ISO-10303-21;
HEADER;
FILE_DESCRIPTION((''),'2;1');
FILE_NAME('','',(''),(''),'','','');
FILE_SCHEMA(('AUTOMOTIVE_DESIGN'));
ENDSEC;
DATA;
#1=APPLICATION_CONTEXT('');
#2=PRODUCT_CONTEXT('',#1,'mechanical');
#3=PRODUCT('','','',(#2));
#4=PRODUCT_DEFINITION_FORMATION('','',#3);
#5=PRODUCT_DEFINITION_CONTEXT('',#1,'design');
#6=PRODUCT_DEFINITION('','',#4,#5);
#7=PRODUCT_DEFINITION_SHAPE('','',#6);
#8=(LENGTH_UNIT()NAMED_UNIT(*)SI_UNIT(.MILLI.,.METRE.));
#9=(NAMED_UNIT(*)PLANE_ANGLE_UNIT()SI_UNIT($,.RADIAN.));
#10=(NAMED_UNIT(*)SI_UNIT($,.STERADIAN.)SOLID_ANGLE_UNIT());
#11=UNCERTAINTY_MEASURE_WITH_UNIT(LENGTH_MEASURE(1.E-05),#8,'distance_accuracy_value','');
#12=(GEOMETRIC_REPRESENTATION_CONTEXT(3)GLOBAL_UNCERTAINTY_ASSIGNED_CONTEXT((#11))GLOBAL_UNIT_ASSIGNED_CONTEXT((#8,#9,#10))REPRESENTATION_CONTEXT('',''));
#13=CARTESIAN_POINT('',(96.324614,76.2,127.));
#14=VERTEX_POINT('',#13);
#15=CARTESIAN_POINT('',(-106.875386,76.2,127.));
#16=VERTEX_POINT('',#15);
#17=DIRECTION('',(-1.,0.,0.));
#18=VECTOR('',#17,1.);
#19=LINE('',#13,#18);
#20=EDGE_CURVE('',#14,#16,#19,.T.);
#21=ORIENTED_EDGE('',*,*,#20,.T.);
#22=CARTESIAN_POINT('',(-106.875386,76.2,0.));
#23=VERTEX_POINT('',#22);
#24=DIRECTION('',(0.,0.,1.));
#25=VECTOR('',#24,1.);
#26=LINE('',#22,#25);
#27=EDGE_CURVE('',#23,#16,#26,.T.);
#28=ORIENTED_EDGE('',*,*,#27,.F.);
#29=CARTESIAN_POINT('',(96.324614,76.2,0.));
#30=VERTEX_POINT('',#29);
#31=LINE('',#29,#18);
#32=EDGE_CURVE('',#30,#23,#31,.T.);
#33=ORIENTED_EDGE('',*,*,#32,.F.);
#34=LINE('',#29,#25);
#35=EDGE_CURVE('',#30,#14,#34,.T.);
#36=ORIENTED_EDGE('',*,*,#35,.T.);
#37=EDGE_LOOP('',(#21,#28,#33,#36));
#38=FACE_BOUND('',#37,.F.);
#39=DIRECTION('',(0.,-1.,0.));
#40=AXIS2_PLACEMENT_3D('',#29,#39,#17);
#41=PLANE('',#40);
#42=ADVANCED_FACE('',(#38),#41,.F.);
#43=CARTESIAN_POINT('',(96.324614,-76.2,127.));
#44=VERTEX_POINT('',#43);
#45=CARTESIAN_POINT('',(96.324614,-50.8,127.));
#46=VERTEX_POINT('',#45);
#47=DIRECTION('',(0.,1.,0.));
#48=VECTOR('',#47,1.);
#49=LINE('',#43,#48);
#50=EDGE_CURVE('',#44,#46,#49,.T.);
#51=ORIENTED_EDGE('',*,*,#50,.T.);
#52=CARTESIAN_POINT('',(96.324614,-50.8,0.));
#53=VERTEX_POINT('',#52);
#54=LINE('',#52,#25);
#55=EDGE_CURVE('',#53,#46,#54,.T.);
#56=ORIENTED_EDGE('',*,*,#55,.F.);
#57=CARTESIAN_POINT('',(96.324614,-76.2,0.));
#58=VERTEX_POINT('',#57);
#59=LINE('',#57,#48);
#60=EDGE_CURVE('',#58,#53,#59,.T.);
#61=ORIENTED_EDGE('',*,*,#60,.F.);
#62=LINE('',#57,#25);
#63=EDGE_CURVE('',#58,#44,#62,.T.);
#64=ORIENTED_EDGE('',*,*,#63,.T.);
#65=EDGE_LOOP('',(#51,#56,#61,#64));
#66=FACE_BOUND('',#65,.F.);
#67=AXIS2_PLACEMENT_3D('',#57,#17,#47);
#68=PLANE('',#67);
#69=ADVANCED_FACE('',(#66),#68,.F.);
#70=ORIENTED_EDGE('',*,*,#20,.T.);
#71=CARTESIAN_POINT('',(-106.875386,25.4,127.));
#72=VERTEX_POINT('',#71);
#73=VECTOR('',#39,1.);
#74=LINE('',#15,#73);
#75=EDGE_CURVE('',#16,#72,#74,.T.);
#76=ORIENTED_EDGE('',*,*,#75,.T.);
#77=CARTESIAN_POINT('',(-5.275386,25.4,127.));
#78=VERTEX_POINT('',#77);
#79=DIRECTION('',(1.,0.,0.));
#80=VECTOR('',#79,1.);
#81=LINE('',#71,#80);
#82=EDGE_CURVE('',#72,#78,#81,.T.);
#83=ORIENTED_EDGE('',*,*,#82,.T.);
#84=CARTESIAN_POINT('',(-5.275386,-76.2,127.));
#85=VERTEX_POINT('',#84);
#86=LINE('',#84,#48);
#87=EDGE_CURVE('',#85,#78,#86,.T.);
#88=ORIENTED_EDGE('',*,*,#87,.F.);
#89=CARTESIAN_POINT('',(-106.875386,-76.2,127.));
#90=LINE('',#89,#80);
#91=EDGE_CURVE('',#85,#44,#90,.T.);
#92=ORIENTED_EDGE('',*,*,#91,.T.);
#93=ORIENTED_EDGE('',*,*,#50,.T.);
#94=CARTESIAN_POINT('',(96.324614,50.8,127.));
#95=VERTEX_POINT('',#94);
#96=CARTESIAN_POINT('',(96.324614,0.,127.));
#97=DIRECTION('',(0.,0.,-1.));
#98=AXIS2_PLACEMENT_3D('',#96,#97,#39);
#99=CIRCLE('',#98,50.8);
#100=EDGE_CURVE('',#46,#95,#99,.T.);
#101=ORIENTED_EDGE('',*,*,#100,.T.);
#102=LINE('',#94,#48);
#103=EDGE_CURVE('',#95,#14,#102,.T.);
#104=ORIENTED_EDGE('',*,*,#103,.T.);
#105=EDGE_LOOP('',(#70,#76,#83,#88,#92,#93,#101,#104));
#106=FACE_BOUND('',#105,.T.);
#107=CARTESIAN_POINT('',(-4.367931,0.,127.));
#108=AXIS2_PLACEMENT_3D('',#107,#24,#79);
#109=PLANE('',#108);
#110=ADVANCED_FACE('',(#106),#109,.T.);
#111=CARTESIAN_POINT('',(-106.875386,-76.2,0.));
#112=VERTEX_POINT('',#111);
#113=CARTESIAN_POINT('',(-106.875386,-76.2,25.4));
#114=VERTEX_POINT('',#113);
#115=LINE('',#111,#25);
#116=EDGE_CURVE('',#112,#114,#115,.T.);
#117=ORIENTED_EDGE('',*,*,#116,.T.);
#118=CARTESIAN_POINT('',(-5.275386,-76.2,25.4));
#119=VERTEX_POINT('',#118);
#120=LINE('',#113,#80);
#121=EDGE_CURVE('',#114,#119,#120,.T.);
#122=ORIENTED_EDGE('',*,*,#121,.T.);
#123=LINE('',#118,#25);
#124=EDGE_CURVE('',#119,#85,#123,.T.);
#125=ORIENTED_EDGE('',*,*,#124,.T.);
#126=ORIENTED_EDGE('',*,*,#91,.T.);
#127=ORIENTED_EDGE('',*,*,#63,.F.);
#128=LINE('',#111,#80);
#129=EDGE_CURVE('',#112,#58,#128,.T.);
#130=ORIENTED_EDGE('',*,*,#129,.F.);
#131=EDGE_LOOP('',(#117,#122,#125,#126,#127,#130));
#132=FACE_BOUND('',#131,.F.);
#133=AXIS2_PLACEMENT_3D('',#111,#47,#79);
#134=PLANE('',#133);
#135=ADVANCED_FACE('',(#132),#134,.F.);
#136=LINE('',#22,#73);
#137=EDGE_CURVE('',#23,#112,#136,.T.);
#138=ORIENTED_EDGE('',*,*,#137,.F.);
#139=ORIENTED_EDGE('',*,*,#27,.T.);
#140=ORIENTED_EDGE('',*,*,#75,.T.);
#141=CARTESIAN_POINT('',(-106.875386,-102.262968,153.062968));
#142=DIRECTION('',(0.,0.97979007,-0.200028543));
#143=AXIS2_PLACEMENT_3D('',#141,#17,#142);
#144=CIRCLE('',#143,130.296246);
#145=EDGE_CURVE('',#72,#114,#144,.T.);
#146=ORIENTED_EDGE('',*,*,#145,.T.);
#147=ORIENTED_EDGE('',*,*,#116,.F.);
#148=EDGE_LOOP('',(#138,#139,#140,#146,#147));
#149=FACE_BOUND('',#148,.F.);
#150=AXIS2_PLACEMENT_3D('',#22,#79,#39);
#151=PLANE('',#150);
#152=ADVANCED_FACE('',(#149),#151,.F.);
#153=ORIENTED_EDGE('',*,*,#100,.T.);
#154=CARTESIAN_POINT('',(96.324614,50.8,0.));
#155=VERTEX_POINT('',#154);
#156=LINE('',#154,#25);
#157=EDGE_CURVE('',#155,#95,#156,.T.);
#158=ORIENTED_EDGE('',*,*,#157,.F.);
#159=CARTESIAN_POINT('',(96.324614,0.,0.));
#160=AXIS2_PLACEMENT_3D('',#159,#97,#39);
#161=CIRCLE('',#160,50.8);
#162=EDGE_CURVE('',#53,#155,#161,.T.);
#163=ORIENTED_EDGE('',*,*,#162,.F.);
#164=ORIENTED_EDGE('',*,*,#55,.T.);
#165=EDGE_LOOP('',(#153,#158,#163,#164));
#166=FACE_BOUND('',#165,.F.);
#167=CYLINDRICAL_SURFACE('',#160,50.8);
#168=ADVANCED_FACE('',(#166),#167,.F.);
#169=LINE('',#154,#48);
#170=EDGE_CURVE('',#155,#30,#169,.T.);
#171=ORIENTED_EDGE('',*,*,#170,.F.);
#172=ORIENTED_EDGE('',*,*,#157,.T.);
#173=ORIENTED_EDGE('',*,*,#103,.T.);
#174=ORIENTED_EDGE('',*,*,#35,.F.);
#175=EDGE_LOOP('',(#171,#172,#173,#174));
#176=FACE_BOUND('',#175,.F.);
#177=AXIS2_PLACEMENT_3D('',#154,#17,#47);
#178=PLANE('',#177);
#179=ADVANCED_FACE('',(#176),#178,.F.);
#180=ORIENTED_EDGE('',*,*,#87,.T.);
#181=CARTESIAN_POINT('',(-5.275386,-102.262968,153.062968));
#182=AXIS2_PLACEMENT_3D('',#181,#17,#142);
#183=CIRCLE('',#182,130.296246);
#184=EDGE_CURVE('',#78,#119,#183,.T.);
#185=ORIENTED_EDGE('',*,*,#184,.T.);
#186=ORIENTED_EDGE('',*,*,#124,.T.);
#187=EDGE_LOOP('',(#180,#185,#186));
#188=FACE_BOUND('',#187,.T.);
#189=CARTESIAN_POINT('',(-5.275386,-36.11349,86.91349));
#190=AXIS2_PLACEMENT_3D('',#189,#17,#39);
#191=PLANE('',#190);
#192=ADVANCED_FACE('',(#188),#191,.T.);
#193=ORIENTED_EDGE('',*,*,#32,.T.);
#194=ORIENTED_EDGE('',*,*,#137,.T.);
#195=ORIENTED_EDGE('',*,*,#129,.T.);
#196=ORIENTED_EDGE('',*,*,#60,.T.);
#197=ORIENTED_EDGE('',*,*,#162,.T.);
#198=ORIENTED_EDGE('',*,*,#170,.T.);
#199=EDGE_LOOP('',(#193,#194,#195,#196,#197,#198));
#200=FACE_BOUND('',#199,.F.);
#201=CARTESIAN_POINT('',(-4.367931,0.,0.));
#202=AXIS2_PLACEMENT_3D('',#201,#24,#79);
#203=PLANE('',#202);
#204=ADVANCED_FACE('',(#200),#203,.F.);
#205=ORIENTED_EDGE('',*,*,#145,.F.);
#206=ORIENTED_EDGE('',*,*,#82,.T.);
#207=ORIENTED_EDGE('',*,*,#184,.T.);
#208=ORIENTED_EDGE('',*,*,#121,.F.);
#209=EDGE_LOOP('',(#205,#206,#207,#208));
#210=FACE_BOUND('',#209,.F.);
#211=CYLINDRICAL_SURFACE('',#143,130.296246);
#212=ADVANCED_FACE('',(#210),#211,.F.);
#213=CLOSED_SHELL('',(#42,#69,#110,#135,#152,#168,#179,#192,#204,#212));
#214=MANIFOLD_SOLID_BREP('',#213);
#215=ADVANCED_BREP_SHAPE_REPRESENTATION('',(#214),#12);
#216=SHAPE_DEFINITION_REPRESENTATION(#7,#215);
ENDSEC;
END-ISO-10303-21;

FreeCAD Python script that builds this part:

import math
import FreeCAD as App
import Part
import Sketcher

V = App.Vector
Q = App.Units.Quantity

doc = App.newDocument("Part")
params = doc.addObject("Spreadsheet::Sheet", "Params")
for row, (alias, value) in enumerate([
    ("sketch1_radius", "2 in"),
    ("sketch1_width", "8 in"),
    ("sketch1_height", "6 in"),
    ("pad1_length", "5 in"),
    ("sketch2_width", "4 in"),
    ("pocket1_length", "4 in"),
], start=1):
    params.set(f"A{row}", alias)
    params.set(f"B{row}", "=" + value)
    params.setAlias(f"B{row}", alias)

body = doc.addObject("PartDesign::Body", "Body")

# Sketch on XY plane
sketch1 = body.newObject("Sketcher::SketchObject", "Sketch")
sketch1.AttachmentSupport = (doc.getObject("XY_Plane"), [""])
sketch1.MapMode = "FlatFace"
sketch1.addGeometry([
    Part.LineSegment(V(96, 76, 0), V(-107, 76, 0)),  # 0
    Part.LineSegment(V(-107, 76, 0), V(-107, -76, 0)),  # 1
    Part.LineSegment(V(-107, -76, 0), V(96, -76, 0)),  # 2
    Part.LineSegment(V(96, -76, 0), V(96, -51, 0)),  # 3
    Part.ArcOfCircle(Part.Circle(V(96, 0, 0), V(0, 0, 1), 51), math.radians(90), math.radians(270)),  # 4
    Part.LineSegment(V(96, 51, 0), V(96, 76, 0)),  # 5
], False)
sketch1.addConstraint([
    Sketcher.Constraint("Coincident", 0, 2, 1, 1),
    Sketcher.Constraint("Coincident", 1, 2, 2, 1),
    Sketcher.Constraint("Coincident", 2, 2, 3, 1),
    Sketcher.Constraint("Coincident", 3, 2, 4, 2),
    Sketcher.Constraint("Coincident", 4, 1, 5, 1),
    Sketcher.Constraint("Coincident", 5, 2, 0, 1),
    Sketcher.Constraint("Horizontal", 0),
    Sketcher.Constraint("Vertical", 1),
    Sketcher.Constraint("Horizontal", 2),
    Sketcher.Constraint("Vertical", 3),
    Sketcher.Constraint("Vertical", 5),
    Sketcher.Constraint("Symmetric", 3, 2, 4, 1, -1),
    Sketcher.Constraint("Vertical", 4, 3, 2, 2),
    Sketcher.Constraint("Equal", 3, 5),
    Sketcher.Constraint("Radius", 4, Q("2 in")),
    Sketcher.Constraint("DistanceX", 0, 2, 0, 1, Q("8 in")),
    Sketcher.Constraint("DistanceY", 1, 2, 1, 1, Q("6 in")),
    Sketcher.Constraint("DistanceX", -1, 1, 4, 3, Q("96.324614 mm")),
])
sketch1.setExpression("Constraints[14]", "Params.sketch1_radius")
sketch1.setExpression("Constraints[15]", "Params.sketch1_width")
sketch1.setExpression("Constraints[16]", "Params.sketch1_height")
pad1 = body.newObject("PartDesign::Pad", "Pad")
pad1.Profile = sketch1
pad1.setExpression("Length", "Params.pad1_length")

# Sketch on YZ plane
sketch2 = body.newObject("Sketcher::SketchObject", "Sketch001")
sketch2.AttachmentSupport = (doc.getObject("YZ_Plane"), [""])
sketch2.MapMode = "FlatFace"
sketch2.AttachmentOffset = App.Placement(V(0, 0, -106.875386), App.Rotation())
sketch2.addGeometry([
    Part.LineSegment(V(-76, 127, 0), V(25, 127, 0)),
    Part.ArcOfCircle(Part.Circle(V(-102, 153, 0), V(0, 0, 1), 130), math.radians(-78), math.radians(-12)),
    Part.LineSegment(V(-76, 25, 0), V(-76, 127, 0)),
], False)
sketch2.addConstraint([
    Sketcher.Constraint("Coincident", 0, 2, 1, 2),
    Sketcher.Constraint("Coincident", 1, 1, 2, 1),
    Sketcher.Constraint("Coincident", 2, 2, 0, 1),
    Sketcher.Constraint("Horizontal", 0),
    Sketcher.Constraint("Vertical", 2),
    Sketcher.Constraint("Equal", 0, 2),
    Sketcher.Constraint("DistanceX", 0, 1, 0, 2, Q("4 in")),
    Sketcher.Constraint("DistanceX", -1, 1, 0, 2, Q("1 in")),
    Sketcher.Constraint("DistanceY", -1, 1, 0, 2, Q("5 in")),
    Sketcher.Constraint("Radius", 1, Q("130.296246 mm")),
])
sketch2.setExpression("Constraints[6]", "Params.sketch2_width")
pocket1 = body.newObject("PartDesign::Pocket", "Pocket")
pocket1.Profile = sketch2
pocket1.setExpression("Length", "Params.pocket1_length")
pocket1.Reversed = True

doc.recompute()
